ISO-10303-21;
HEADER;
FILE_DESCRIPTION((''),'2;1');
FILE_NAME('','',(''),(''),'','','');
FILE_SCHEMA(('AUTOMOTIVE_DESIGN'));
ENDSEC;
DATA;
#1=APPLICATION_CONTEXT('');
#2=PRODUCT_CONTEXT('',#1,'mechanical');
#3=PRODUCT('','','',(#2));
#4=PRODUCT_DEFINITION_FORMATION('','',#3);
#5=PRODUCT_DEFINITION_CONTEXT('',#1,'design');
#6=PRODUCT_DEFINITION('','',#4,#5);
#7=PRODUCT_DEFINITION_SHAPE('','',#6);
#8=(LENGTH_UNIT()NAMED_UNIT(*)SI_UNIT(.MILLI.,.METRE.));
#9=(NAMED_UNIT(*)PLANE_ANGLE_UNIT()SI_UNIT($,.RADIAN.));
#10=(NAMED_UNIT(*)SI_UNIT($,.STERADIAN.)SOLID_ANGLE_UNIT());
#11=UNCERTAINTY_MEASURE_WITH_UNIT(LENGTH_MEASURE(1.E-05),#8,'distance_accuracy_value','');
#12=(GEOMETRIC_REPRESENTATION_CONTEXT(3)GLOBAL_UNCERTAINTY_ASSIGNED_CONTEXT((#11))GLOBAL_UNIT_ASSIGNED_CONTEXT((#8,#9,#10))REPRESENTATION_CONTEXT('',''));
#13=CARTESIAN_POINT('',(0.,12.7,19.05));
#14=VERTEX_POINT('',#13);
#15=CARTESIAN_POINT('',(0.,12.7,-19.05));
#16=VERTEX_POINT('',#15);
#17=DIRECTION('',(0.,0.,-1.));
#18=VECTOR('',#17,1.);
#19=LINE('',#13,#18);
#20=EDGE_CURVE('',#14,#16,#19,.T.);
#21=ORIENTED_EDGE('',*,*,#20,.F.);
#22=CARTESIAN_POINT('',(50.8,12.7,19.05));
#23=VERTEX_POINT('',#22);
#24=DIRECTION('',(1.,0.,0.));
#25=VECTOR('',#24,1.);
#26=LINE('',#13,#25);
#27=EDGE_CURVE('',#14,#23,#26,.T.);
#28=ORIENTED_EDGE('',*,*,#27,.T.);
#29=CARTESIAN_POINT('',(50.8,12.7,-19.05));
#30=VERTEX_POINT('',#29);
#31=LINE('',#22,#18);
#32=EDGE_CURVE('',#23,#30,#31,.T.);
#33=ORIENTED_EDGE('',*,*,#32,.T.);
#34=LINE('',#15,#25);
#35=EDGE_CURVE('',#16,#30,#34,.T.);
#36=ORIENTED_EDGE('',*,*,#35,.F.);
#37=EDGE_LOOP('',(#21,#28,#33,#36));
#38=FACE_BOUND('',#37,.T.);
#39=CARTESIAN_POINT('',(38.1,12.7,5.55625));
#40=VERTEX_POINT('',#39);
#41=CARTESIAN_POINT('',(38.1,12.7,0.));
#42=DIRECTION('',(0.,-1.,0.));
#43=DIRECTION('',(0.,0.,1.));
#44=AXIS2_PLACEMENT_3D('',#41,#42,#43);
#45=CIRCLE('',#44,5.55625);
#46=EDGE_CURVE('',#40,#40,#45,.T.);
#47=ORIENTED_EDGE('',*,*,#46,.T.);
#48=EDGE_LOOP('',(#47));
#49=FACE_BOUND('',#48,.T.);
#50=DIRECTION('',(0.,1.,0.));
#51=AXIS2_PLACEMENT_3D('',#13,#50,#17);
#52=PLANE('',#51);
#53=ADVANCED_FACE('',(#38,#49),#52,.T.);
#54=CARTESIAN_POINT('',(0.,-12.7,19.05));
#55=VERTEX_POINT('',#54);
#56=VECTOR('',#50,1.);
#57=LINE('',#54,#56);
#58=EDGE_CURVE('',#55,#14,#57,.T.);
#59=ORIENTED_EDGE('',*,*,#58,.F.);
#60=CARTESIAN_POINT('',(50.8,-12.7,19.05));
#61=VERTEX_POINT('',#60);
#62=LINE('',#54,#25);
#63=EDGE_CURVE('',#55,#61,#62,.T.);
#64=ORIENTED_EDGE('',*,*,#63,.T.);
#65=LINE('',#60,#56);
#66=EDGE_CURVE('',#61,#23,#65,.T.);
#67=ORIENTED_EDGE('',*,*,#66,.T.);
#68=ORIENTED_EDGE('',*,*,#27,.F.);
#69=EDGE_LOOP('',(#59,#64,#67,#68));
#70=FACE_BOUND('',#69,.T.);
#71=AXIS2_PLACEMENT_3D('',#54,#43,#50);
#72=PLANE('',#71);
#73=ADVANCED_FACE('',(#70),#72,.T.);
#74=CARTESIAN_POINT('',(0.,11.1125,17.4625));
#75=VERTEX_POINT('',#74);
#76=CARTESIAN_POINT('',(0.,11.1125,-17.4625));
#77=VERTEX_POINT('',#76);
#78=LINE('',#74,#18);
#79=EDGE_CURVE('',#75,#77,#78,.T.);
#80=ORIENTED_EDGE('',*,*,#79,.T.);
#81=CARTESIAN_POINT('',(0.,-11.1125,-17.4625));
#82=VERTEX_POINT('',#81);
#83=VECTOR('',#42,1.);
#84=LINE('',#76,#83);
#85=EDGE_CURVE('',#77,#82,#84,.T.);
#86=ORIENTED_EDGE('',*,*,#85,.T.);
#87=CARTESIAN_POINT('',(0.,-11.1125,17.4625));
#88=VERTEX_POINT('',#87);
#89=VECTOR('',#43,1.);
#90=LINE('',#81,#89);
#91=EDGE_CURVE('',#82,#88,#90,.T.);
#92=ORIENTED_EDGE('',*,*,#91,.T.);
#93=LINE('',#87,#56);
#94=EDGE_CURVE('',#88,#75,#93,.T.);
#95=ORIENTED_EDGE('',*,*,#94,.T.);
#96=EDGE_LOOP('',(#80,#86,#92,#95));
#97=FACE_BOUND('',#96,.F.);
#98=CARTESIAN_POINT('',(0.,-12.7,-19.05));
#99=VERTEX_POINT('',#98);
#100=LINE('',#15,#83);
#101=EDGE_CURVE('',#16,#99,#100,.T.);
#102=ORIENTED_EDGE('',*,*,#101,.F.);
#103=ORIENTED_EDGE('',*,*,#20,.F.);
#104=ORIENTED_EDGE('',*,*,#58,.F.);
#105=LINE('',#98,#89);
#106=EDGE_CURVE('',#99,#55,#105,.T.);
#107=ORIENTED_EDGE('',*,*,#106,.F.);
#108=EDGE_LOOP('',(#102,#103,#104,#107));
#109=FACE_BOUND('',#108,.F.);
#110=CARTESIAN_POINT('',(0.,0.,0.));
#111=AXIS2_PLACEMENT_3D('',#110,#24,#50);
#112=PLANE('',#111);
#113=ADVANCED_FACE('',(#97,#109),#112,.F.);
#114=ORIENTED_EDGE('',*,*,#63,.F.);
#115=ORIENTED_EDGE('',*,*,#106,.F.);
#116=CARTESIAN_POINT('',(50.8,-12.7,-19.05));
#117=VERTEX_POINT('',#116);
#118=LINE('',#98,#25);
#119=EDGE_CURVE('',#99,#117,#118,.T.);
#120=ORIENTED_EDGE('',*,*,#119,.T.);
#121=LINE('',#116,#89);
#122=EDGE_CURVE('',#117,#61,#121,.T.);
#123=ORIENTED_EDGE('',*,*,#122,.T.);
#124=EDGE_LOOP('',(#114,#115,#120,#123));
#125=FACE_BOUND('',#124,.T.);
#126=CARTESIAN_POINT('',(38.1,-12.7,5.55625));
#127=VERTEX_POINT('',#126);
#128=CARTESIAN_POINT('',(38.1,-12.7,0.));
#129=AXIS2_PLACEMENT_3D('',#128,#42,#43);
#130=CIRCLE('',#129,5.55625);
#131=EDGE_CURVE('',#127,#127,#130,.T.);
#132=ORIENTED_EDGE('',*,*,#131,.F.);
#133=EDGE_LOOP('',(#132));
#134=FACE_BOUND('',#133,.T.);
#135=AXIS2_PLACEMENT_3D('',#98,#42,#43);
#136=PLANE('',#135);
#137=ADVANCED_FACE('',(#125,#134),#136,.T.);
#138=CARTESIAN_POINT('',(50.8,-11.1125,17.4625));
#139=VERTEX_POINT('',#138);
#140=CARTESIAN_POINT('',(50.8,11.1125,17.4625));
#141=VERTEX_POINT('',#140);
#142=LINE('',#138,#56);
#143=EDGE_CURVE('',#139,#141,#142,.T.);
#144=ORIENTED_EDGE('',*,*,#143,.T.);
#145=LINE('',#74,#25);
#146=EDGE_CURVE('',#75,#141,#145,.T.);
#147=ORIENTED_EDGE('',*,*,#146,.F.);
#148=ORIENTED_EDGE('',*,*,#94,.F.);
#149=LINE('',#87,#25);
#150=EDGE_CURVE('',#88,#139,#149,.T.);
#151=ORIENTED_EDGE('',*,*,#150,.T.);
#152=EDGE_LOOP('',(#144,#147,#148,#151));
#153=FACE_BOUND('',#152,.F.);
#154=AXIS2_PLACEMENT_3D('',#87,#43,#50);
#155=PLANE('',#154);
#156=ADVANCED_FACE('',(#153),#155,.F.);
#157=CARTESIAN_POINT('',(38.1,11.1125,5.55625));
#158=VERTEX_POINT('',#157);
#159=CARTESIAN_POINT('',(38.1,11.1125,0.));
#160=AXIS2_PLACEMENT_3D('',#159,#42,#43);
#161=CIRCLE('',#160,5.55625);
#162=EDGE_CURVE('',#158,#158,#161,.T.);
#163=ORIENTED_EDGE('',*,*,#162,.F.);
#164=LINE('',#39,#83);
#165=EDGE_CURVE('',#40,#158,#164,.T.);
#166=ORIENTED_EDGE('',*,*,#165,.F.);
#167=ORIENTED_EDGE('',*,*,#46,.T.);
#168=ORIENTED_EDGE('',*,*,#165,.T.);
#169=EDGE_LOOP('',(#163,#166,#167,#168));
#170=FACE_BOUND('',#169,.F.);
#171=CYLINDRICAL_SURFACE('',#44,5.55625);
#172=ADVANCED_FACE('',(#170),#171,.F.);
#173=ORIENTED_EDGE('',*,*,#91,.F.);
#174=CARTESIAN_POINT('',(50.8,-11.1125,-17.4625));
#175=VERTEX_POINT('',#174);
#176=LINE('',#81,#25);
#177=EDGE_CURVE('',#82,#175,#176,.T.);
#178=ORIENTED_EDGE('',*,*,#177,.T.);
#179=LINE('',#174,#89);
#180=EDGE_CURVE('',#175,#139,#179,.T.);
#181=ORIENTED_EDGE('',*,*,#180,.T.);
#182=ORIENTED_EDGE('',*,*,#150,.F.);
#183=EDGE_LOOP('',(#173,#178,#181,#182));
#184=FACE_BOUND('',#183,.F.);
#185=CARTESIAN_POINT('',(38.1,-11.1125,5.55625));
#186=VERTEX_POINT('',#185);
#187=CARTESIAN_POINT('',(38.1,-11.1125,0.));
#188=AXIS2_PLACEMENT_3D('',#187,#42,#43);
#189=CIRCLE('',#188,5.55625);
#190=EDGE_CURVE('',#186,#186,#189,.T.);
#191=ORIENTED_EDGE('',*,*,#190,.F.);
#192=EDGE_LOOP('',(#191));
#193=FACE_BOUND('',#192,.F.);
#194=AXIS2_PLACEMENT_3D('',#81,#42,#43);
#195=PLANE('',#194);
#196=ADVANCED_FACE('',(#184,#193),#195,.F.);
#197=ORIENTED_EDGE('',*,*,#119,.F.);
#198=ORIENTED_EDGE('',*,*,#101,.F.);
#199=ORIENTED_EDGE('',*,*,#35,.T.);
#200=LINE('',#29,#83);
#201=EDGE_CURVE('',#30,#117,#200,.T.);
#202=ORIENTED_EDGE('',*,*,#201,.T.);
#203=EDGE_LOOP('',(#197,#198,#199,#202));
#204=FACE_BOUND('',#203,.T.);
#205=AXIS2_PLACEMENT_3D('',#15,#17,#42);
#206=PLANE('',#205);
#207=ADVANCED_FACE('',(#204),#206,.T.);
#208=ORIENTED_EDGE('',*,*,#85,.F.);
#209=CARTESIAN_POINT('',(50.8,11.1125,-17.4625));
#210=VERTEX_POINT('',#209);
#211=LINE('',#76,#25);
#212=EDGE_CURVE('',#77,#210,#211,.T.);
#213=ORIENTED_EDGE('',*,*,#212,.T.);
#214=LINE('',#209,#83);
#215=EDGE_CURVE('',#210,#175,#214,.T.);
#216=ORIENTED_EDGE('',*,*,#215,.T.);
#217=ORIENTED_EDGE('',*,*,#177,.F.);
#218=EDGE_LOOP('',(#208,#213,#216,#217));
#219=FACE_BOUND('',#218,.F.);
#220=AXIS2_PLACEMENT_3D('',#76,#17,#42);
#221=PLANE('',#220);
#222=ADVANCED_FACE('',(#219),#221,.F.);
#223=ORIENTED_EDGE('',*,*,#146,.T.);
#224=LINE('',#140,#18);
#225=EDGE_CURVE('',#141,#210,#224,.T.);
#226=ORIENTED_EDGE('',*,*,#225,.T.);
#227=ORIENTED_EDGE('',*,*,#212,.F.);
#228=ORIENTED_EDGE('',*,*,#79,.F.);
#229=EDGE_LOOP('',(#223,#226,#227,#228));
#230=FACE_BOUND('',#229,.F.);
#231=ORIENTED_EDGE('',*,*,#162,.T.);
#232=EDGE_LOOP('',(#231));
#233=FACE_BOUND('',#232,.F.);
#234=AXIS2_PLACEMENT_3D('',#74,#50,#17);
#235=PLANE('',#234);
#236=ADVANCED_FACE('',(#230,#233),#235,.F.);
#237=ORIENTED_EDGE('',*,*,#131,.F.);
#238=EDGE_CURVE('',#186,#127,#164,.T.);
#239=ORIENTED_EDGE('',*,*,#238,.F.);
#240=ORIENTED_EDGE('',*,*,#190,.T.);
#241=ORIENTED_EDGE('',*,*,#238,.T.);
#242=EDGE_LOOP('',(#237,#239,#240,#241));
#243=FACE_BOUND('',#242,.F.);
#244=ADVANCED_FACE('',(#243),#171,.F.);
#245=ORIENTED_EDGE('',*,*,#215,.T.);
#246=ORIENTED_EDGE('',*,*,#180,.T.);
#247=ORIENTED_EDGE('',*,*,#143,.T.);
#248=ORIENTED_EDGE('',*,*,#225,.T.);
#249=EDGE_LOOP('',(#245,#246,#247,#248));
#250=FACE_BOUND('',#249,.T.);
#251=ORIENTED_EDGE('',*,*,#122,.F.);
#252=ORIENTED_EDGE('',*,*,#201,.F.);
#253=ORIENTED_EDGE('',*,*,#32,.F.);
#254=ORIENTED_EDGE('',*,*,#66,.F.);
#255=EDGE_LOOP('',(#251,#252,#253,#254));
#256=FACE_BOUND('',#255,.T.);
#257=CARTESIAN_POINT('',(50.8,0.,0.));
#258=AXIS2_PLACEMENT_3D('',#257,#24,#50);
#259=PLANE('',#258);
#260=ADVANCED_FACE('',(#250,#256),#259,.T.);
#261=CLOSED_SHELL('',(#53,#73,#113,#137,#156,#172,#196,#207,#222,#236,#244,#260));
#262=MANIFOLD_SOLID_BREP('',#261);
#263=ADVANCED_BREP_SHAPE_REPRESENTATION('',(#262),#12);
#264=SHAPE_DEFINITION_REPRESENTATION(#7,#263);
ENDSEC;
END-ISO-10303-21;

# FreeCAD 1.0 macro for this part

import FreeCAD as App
import Part
import Sketcher
from FreeCAD import Vector
Q = App.Units.Quantity

doc = App.newDocument("Part")
body = doc.addObject("PartDesign::Body", "Body")

# Sketch on YZ plane
sketch1 = doc.addObject("Sketcher::SketchObject", "Sketch")
body.addObject(sketch1)
sketch1.AttachmentSupport = (doc.YZ_Plane, [""])
sketch1.MapMode = "FlatFace"
sketch1.addGeometry([
    Part.LineSegment(Vector(13, 19, 0), Vector(-13, 19, 0)),  # 0
    Part.LineSegment(Vector(-13, 19, 0), Vector(-13, -19, 0)),  # 1
    Part.LineSegment(Vector(-13, -19, 0), Vector(13, -19, 0)),  # 2
    Part.LineSegment(Vector(13, -19, 0), Vector(13, 19, 0)),  # 3
    Part.LineSegment(Vector(-11, -17, 0), Vector(-11, 17, 0)),  # 4
    Part.LineSegment(Vector(-11, 17, 0), Vector(11, 17, 0)),  # 5
    Part.LineSegment(Vector(11, 17, 0), Vector(11, -17, 0)),  # 6
    Part.LineSegment(Vector(11, -17, 0), Vector(-11, -17, 0)),  # 7
], False)
sketch1.addConstraint([
    Sketcher.Constraint("Coincident", 0, 2, 1, 1),
    Sketcher.Constraint("Coincident", 1, 2, 2, 1),
    Sketcher.Constraint("Coincident", 2, 2, 3, 1),
    Sketcher.Constraint("Coincident", 3, 2, 0, 1),
    Sketcher.Constraint("Coincident", 4, 2, 5, 1),
    Sketcher.Constraint("Coincident", 5, 2, 6, 1),
    Sketcher.Constraint("Coincident", 6, 2, 7, 1),
    Sketcher.Constraint("Coincident", 7, 2, 4, 1),
    Sketcher.Constraint("Horizontal", 0),
    Sketcher.Constraint("Vertical", 1),
    Sketcher.Constraint("Horizontal", 2),
    Sketcher.Constraint("Vertical", 3),
    Sketcher.Constraint("Vertical", 4),
    Sketcher.Constraint("Horizontal", 5),
    Sketcher.Constraint("Vertical", 6),
    Sketcher.Constraint("Horizontal", 7),
    Sketcher.Constraint("Symmetric", 0, 2, 2, 2, -1, 1),
    Sketcher.Constraint("Symmetric", 4, 2, 6, 2, -1, 1),
    Sketcher.Constraint("DistanceX", 0, 2, 0, 1, Q("1 in")),
    Sketcher.Constraint("DistanceY", 1, 2, 1, 1, Q("1.5 in")),
    Sketcher.Constraint("DistanceX", 0, 2, 4, 2, Q("0.0625 in")),
    Sketcher.Constraint("DistanceY", 4, 2, 0, 2, Q("0.0625 in")),
])
pad1 = doc.addObject("PartDesign::Pad", "Pad")
body.addObject(pad1)
pad1.Profile = sketch1
pad1.Length = Q("2 in")

# Sketch on XZ plane
sketch2 = doc.addObject("Sketcher::SketchObject", "Sketch001")
body.addObject(sketch2)
sketch2.AttachmentSupport = (doc.XZ_Plane, [""])
sketch2.MapMode = "FlatFace"
sketch2.AttachmentOffset = App.Placement(Vector(0, 0, -0.5 * 25.4), App.Rotation())
sketch2.addGeometry(Part.Circle(Vector(38, 0, 0), Vector(0, 0, 1), 6), False)
sketch2.addConstraint([
    Sketcher.Constraint("PointOnObject", 0, 3, -1),
    Sketcher.Constraint("Diameter", 0, Q("0.4375 in")),
    Sketcher.Constraint("DistanceX", -1, 1, 0, 3, Q("1.5 in")),
])
doc.recompute()
hole = doc.addObject("PartDesign::Hole", "Hole")
body.addObject(hole)
hole.Profile = sketch2
hole.ThreadType = "None"
hole.Diameter = Q("0.4375 in")
hole.DepthType = "ThroughAll"
hole.Reversed = True

doc.recompute()
